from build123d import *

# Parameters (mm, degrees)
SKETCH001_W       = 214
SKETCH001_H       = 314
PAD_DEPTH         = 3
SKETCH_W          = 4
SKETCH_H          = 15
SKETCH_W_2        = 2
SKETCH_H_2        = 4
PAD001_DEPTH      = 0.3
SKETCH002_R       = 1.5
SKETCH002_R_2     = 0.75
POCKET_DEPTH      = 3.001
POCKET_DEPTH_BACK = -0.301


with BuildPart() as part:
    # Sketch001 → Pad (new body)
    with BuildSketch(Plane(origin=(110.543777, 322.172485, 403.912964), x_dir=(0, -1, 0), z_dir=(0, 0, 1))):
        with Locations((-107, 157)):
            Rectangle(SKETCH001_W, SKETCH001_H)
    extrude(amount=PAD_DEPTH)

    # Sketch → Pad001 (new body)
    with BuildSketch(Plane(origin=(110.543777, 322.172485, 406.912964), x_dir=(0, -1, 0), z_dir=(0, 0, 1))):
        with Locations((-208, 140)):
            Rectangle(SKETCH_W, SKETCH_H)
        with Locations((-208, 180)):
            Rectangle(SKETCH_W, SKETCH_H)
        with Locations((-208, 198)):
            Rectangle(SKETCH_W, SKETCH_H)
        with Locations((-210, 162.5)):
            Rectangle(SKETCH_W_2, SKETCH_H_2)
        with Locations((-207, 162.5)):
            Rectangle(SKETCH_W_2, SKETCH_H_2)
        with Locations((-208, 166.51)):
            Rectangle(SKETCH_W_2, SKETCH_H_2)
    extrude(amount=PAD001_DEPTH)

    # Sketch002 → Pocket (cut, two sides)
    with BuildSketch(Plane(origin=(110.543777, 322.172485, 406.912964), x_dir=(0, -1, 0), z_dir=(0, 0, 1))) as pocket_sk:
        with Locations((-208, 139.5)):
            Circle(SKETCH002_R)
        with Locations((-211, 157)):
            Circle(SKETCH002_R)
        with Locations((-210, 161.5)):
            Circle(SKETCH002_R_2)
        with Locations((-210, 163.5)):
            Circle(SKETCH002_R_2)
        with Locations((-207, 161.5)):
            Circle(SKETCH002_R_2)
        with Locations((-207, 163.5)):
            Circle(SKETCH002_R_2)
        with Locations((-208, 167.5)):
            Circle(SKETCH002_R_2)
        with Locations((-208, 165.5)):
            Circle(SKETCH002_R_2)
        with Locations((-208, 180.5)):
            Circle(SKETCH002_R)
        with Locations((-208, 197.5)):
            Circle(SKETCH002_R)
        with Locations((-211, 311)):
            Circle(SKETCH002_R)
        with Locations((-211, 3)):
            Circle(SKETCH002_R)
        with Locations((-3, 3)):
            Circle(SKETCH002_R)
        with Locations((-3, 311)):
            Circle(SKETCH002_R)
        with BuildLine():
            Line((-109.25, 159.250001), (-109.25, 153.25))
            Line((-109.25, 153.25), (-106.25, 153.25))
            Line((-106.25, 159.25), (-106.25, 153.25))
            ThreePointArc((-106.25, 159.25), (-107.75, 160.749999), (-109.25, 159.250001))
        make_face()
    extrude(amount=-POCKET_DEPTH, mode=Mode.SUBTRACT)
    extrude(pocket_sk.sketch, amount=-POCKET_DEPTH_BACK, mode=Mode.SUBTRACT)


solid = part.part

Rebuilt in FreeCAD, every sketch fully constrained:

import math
import FreeCAD as App
import Part
import Sketcher

V = App.Vector
Q = App.Units.Quantity

doc = App.newDocument("Part")
body = doc.addObject("PartDesign::Body", "Body")

sketch1 = body.newObject("Sketcher::SketchObject", "Sketch")
sketch1.AttachmentSupport = (doc.getObject("XY_Plane"), [""])
sketch1.MapMode = "FlatFace"
sketch1.AttachmentOffset = App.Placement(V(0, 0, 403.912964), App.Rotation())
sketch1.addGeometry([
    Part.LineSegment(V(425, 536, 0), V(111, 536, 0)),
    Part.LineSegment(V(111, 536, 0), V(111, 322, 0)),
    Part.LineSegment(V(111, 322, 0), V(425, 322, 0)),
    Part.LineSegment(V(425, 322, 0), V(425, 536, 0)),
], False)
sketch1.addConstraint([
    Sketcher.Constraint("Coincident", 0, 2, 1, 1),
    Sketcher.Constraint("Coincident", 1, 2, 2, 1),
    Sketcher.Constraint("Coincident", 2, 2, 3, 1),
    Sketcher.Constraint("Coincident", 3, 2, 0, 1),
    Sketcher.Constraint("Horizontal", 0),
    Sketcher.Constraint("Vertical", 1),
    Sketcher.Constraint("Horizontal", 2),
    Sketcher.Constraint("Vertical", 3),
    Sketcher.Constraint("DistanceX", 0, 2, 0, 1, Q("314 mm")),
    Sketcher.Constraint("DistanceY", 1, 2, 1, 1, Q("214 mm")),
    Sketcher.Constraint("DistanceX", -1, 1, 0, 2, Q("110.543777 mm")),
    Sketcher.Constraint("DistanceY", -1, 1, 0, 2, Q("536.172485 mm")),
])
pad1 = body.newObject("PartDesign::Pad", "Pad")
pad1.Profile = sketch1
pad1.Length = 3

sketch2 = body.newObject("Sketcher::SketchObject", "Sketch001")
sketch2.AttachmentSupport = (doc.getObject("XY_Plane"), [""])
sketch2.MapMode = "FlatFace"
sketch2.AttachmentOffset = App.Placement(V(0, 0, 406.912964), App.Rotation())
sketch2.addGeometry([
    Part.LineSegment(V(258, 532.2, 0), V(243, 532.2, 0)),
    Part.LineSegment(V(243, 532.2, 0), V(243, 528.2, 0)),
    Part.LineSegment(V(243, 528.2, 0), V(258, 528.2, 0)),
    Part.LineSegment(V(258, 528.2, 0), V(258, 532.2, 0)),
    Part.LineSegment(V(298, 532.2, 0), V(283, 532.2, 0)),
    Part.LineSegment(V(283, 532.2, 0), V(283, 528.2, 0)),
    Part.LineSegment(V(283, 528.2, 0), V(298, 528.2, 0)),
    Part.LineSegment(V(298, 528.2, 0), V(298, 532.2, 0)),
    Part.LineSegment(V(316, 532.2, 0), V(301, 532.2, 0)),
    Part.LineSegment(V(301, 532.2, 0), V(301, 528.2, 0)),
    Part.LineSegment(V(301, 528.2, 0), V(316, 528.2, 0)),
    Part.LineSegment(V(316, 528.2, 0), V(316, 532.2, 0)),
    Part.LineSegment(V(275, 533.2, 0), V(271, 533.2, 0)),
    Part.LineSegment(V(271, 533.2, 0), V(271, 531.2, 0)),
    Part.LineSegment(V(271, 531.2, 0), V(275, 531.2, 0)),
    Part.LineSegment(V(275, 531.2, 0), V(275, 533.2, 0)),
    Part.LineSegment(V(275, 530.2, 0), V(271, 530.2, 0)),
    Part.LineSegment(V(271, 530.2, 0), V(271, 528.2, 0)),
    Part.LineSegment(V(271, 528.2, 0), V(275, 528.2, 0)),
    Part.LineSegment(V(275, 528.2, 0), V(275, 530.2, 0)),
    Part.LineSegment(V(279.1, 531.2, 0), V(275.1, 531.2, 0)),
    Part.LineSegment(V(275.1, 531.2, 0), V(275.1, 529.2, 0)),
    Part.LineSegment(V(275.1, 529.2, 0), V(279.1, 529.2, 0)),
    Part.LineSegment(V(279.1, 529.2, 0), V(279.1, 531.2, 0)),
], False)
sketch2.addConstraint([
    Sketcher.Constraint("Coincident", 0, 2, 1, 1),
    Sketcher.Constraint("Coincident", 1, 2, 2, 1),
    Sketcher.Constraint("Coincident", 2, 2, 3, 1),
    Sketcher.Constraint("Coincident", 3, 2, 0, 1),
    Sketcher.Constraint("Coincident", 4, 2, 5, 1),
    Sketcher.Constraint("Coincident", 5, 2, 6, 1),
    Sketcher.Constraint("Coincident", 6, 2, 7, 1),
    Sketcher.Constraint("Coincident", 7, 2, 4, 1),
    Sketcher.Constraint("Coincident", 8, 2, 9, 1),
    Sketcher.Constraint("Coincident", 9, 2, 10, 1),
    Sketcher.Constraint("Coincident", 10, 2, 11, 1),
    Sketcher.Constraint("Coincident", 11, 2, 8, 1),
    Sketcher.Constraint("Coincident", 12, 2, 13, 1),
    Sketcher.Constraint("Coincident", 13, 2, 14, 1),
    Sketcher.Constraint("Coincident", 14, 2, 15, 1),
    Sketcher.Constraint("Coincident", 15, 2, 12, 1),
    Sketcher.Constraint("Coincident", 16, 2, 17, 1),
    Sketcher.Constraint("Coincident", 17, 2, 18, 1),
    Sketcher.Constraint("Coincident", 18, 2, 19, 1),
    Sketcher.Constraint("Coincident", 19, 2, 16, 1),
    Sketcher.Constraint("Coincident", 20, 2, 21, 1),
    Sketcher.Constraint("Coincident", 21, 2, 22, 1),
    Sketcher.Constraint("Coincident", 22, 2, 23, 1),
    Sketcher.Constraint("Coincident", 23, 2, 20, 1),
    Sketcher.Constraint("Horizontal", 0),
    Sketcher.Constraint("Vertical", 1),
    Sketcher.Constraint("Horizontal", 2),
    Sketcher.Constraint("Vertical", 3),
    Sketcher.Constraint("Horizontal", 4),
    Sketcher.Constraint("Vertical", 5),
    Sketcher.Constraint("Horizontal", 6),
    Sketcher.Constraint("Vertical", 7),
    Sketcher.Constraint("Horizontal", 8),
    Sketcher.Constraint("Vertical", 9),
    Sketcher.Constraint("Horizontal", 10),
    Sketcher.Constraint("Vertical", 11),
    Sketcher.Constraint("Horizontal", 12),
    Sketcher.Constraint("Vertical", 13),
    Sketcher.Constraint("Horizontal", 14),
    Sketcher.Constraint("Vertical", 15),
    Sketcher.Constraint("Horizontal", 16),
    Sketcher.Constraint("Vertical", 17),
    Sketcher.Constraint("Horizontal", 18),
    Sketcher.Constraint("Vertical", 19),
    Sketcher.Constraint("Horizontal", 20),
    Sketcher.Constraint("Vertical", 21),
    Sketcher.Constraint("Horizontal", 22),
    Sketcher.Constraint("Vertical", 23),
    Sketcher.Constraint("Horizontal", 3, 2, 4, 2),
    Sketcher.Constraint("Horizontal", 2, 2, 5, 2),
    Sketcher.Constraint("Horizontal", 7, 2, 8, 2),
    Sketcher.Constraint("Horizontal", 6, 2, 9, 2),
    Sketcher.Constraint("Horizontal", 10, 2, 17, 2),
    Sketcher.Constraint("Horizontal", 14, 2, 20, 2),
    Sketcher.Constraint("Vertical", 13, 2, 16, 2),
    Sketcher.Constraint("Vertical", 15, 2, 18, 2),
    Sketcher.Constraint("Equal", 2, 4),
    Sketcher.Constraint("Equal", 6, 8),
    Sketcher.Constraint("Equal", 18, 20),
    Sketcher.Constraint("Equal", 22, 1),
    Sketcher.Constraint("Equal", 15, 17),
    Sketcher.Constraint("Equal", 19, 21),
    Sketcher.Constraint("DistanceX", 0, 2, 0, 1, Q("15 mm")),
    Sketcher.Constraint("DistanceX", 12, 2, 12, 1, Q("4 mm")),
    Sketcher.Constraint("DistanceY", 13, 2, 13, 1, Q("2 mm")),
    Sketcher.Constraint("DistanceX", 3, 2, 4, 2, Q("25 mm")),
    Sketcher.Constraint("DistanceX", 7, 2, 8, 2, Q("3 mm")),
    Sketcher.Constraint("DistanceX", 12, 2, 4, 2, Q("12 mm")),
    Sketcher.Constraint("DistanceY", 4, 2, 12, 2, Q("1 mm")),
    Sketcher.Constraint("DistanceX", 14, 2, 20, 2, Q("0.01 mm")),
    Sketcher.Constraint("DistanceX", -1, 1, 0, 2, Q("243.043777 mm")),
    Sketcher.Constraint("DistanceY", -1, 1, 0, 2, Q("532.172485 mm")),
])
pad2 = body.newObject("PartDesign::Pad", "Pad001")
pad2.Profile = sketch2
pad2.Length = 0.3

sketch3 = body.newObject("Sketcher::SketchObject", "Sketch002")
sketch3.AttachmentSupport = (doc.getObject("XY_Plane"), [""])
sketch3.MapMode = "FlatFace"
sketch3.AttachmentOffset = App.Placement(V(0, 0, 406.912964), App.Rotation())
sketch3.addGeometry([
    Part.Circle(V(250, 530.2, 0), V(0, 0, 1), 1.5),
    Part.Circle(V(267.5, 533.2, 0), V(0, 0, 1), 1.5),
    Part.Circle(V(272, 532.2, 0), V(0, 0, 1), 0.8),
    Part.Circle(V(274, 532.2, 0), V(0, 0, 1), 0.8),
    Part.Circle(V(272, 529.2, 0), V(0, 0, 1), 0.8),
    Part.Circle(V(274, 529.2, 0), V(0, 0, 1), 0.8),
    Part.Circle(V(278, 530.2, 0), V(0, 0, 1), 0.8),
    Part.Circle(V(276, 530.2, 0), V(0, 0, 1), 0.8),
    Part.Circle(V(291, 530.2, 0), V(0, 0, 1), 1.5),
    Part.Circle(V(308, 530.2, 0), V(0, 0, 1), 1.5),
    Part.Circle(V(421.5, 533.2, 0), V(0, 0, 1), 1.5),
    Part.Circle(V(113.5, 533.2, 0), V(0, 0, 1), 1.5),
    Part.Circle(V(113.5, 325.2, 0), V(0, 0, 1), 1.5),
    Part.Circle(V(421.5, 325.2, 0), V(0, 0, 1), 1.5),
    Part.LineSegment(V(269.8, 431.4, 0), V(263.8, 431.4, 0)),
    Part.LineSegment(V(263.8, 431.4, 0), V(263.8, 428.4, 0)),
    Part.LineSegment(V(263.8, 428.4, 0), V(269.8, 428.4, 0)),
    Part.ArcOfCircle(Part.Circle(V(269.8, 429.9, 0), V(0, 0, 1), 1.5), math.radians(-90), math.radians(90)),
], False)
sketch3.addConstraint([
    Sketcher.Constraint("Coincident", 14, 2, 15, 1),
    Sketcher.Constraint("Coincident", 15, 2, 16, 1),
    Sketcher.Constraint("Tangent", 16, 2, 17, 1),
    Sketcher.Constraint("Tangent", 17, 2, 14, 1),
    Sketcher.Constraint("Horizontal", 14),
    Sketcher.Constraint("Vertical", 15),
    Sketcher.Constraint("Horizontal", 16),
    Sketcher.Constraint("Equal", 0, 1),
    Sketcher.Constraint("Equal", 2, 3),
    Sketcher.Constraint("Equal", 3, 4),
    Sketcher.Constraint("Equal", 4, 5),
    Sketcher.Constraint("Equal", 5, 6),
    Sketcher.Constraint("Equal", 6, 7),
    Sketcher.Constraint("Equal", 1, 8),
    Sketcher.Constraint("Equal", 8, 9),
    Sketcher.Constraint("Equal", 9, 10),
    Sketcher.Constraint("Equal", 10, 11),
    Sketcher.Constraint("Equal", 11, 12),
    Sketcher.Constraint("Equal", 12, 13),
    Sketcher.Constraint("Equal", 13, 17),
    Sketcher.Constraint("Horizontal", 2, 3, 3, 3),
    Sketcher.Constraint("Horizontal", 4, 3, 5, 3),
    Sketcher.Constraint("Horizontal", 0, 3, 6, 3),
    Sketcher.Constraint("Horizontal", 6, 3, 7, 3),
    Sketcher.Constraint("Horizontal", 7, 3, 8, 3),
    Sketcher.Constraint("Horizontal", 8, 3, 9, 3),
    Sketcher.Constraint("Horizontal", 1, 3, 10, 3),
    Sketcher.Constraint("Horizontal", 10, 3, 11, 3),
    Sketcher.Constraint("Horizontal", 12, 3, 13, 3),
    Sketcher.Constraint("Vertical", 2, 3, 4, 3),
    Sketcher.Constraint("Vertical", 3, 3, 5, 3),
    Sketcher.Constraint("Vertical", 11, 3, 12, 3),
    Sketcher.Constraint("Vertical", 10, 3, 13, 3),
    Sketcher.Constraint("Diameter", 0, Q("3 mm")),
    Sketcher.Constraint("Diameter", 2, Q("1.5 mm")),
    Sketcher.Constraint("DistanceX", 14, 2, 14, 1, Q("6.000001 mm")),
    Sketcher.Constraint("DistanceY", 0, 3, 1, 3, Q("3 mm")),
    Sketcher.Constraint("DistanceY", 2, 3, 1, 3, Q("1 mm")),
    Sketcher.Constraint("DistanceX", 0, 3, 2, 3, Q("22 mm")),
    Sketcher.Constraint("DistanceX", 2, 3, 3, 3, Q("2 mm")),
    Sketcher.Constraint("DistanceY", 4, 3, 2, 3, Q("3 mm")),
    Sketcher.Constraint("DistanceX", 5, 3, 6, 3, Q("4 mm")),
    Sketcher.Constraint("DistanceX", 7, 3, 6, 3, Q("2 mm")),
    Sketcher.Constraint("DistanceX", 6, 3, 8, 3, Q("13 mm")),
    Sketcher.Constraint("DistanceX", 8, 3, 9, 3, Q("17 mm")),
    Sketcher.Constraint("DistanceX", 11, 3, 1, 3, Q("154 mm")),
    Sketcher.Constraint("DistanceY", 12, 3, 11, 3, Q("208 mm")),
    Sketcher.Constraint("DistanceX", 0, 3, 1, 3, Q("17.5 mm")),
    Sketcher.Constraint("DistanceX", 9, 3, 10, 3, Q("113.5 mm")),
    Sketcher.Constraint("DistanceX", 17, 3, 4, 3, Q("2.250001 mm")),
    Sketcher.Constraint("DistanceY", 17, 3, 4, 3, Q("99.25 mm")),
    Sketcher.Constraint("DistanceX", -1, 1, 0, 3, Q("250.043777 mm")),
    Sketcher.Constraint("DistanceY", -1, 1, 0, 3, Q("530.172485 mm")),
])
pocket1 = body.newObject("PartDesign::Pocket", "Pocket")
pocket1.Profile = sketch3
pocket1.Type = "ThroughAll"
pocket1.Midplane = True

doc.recompute()
